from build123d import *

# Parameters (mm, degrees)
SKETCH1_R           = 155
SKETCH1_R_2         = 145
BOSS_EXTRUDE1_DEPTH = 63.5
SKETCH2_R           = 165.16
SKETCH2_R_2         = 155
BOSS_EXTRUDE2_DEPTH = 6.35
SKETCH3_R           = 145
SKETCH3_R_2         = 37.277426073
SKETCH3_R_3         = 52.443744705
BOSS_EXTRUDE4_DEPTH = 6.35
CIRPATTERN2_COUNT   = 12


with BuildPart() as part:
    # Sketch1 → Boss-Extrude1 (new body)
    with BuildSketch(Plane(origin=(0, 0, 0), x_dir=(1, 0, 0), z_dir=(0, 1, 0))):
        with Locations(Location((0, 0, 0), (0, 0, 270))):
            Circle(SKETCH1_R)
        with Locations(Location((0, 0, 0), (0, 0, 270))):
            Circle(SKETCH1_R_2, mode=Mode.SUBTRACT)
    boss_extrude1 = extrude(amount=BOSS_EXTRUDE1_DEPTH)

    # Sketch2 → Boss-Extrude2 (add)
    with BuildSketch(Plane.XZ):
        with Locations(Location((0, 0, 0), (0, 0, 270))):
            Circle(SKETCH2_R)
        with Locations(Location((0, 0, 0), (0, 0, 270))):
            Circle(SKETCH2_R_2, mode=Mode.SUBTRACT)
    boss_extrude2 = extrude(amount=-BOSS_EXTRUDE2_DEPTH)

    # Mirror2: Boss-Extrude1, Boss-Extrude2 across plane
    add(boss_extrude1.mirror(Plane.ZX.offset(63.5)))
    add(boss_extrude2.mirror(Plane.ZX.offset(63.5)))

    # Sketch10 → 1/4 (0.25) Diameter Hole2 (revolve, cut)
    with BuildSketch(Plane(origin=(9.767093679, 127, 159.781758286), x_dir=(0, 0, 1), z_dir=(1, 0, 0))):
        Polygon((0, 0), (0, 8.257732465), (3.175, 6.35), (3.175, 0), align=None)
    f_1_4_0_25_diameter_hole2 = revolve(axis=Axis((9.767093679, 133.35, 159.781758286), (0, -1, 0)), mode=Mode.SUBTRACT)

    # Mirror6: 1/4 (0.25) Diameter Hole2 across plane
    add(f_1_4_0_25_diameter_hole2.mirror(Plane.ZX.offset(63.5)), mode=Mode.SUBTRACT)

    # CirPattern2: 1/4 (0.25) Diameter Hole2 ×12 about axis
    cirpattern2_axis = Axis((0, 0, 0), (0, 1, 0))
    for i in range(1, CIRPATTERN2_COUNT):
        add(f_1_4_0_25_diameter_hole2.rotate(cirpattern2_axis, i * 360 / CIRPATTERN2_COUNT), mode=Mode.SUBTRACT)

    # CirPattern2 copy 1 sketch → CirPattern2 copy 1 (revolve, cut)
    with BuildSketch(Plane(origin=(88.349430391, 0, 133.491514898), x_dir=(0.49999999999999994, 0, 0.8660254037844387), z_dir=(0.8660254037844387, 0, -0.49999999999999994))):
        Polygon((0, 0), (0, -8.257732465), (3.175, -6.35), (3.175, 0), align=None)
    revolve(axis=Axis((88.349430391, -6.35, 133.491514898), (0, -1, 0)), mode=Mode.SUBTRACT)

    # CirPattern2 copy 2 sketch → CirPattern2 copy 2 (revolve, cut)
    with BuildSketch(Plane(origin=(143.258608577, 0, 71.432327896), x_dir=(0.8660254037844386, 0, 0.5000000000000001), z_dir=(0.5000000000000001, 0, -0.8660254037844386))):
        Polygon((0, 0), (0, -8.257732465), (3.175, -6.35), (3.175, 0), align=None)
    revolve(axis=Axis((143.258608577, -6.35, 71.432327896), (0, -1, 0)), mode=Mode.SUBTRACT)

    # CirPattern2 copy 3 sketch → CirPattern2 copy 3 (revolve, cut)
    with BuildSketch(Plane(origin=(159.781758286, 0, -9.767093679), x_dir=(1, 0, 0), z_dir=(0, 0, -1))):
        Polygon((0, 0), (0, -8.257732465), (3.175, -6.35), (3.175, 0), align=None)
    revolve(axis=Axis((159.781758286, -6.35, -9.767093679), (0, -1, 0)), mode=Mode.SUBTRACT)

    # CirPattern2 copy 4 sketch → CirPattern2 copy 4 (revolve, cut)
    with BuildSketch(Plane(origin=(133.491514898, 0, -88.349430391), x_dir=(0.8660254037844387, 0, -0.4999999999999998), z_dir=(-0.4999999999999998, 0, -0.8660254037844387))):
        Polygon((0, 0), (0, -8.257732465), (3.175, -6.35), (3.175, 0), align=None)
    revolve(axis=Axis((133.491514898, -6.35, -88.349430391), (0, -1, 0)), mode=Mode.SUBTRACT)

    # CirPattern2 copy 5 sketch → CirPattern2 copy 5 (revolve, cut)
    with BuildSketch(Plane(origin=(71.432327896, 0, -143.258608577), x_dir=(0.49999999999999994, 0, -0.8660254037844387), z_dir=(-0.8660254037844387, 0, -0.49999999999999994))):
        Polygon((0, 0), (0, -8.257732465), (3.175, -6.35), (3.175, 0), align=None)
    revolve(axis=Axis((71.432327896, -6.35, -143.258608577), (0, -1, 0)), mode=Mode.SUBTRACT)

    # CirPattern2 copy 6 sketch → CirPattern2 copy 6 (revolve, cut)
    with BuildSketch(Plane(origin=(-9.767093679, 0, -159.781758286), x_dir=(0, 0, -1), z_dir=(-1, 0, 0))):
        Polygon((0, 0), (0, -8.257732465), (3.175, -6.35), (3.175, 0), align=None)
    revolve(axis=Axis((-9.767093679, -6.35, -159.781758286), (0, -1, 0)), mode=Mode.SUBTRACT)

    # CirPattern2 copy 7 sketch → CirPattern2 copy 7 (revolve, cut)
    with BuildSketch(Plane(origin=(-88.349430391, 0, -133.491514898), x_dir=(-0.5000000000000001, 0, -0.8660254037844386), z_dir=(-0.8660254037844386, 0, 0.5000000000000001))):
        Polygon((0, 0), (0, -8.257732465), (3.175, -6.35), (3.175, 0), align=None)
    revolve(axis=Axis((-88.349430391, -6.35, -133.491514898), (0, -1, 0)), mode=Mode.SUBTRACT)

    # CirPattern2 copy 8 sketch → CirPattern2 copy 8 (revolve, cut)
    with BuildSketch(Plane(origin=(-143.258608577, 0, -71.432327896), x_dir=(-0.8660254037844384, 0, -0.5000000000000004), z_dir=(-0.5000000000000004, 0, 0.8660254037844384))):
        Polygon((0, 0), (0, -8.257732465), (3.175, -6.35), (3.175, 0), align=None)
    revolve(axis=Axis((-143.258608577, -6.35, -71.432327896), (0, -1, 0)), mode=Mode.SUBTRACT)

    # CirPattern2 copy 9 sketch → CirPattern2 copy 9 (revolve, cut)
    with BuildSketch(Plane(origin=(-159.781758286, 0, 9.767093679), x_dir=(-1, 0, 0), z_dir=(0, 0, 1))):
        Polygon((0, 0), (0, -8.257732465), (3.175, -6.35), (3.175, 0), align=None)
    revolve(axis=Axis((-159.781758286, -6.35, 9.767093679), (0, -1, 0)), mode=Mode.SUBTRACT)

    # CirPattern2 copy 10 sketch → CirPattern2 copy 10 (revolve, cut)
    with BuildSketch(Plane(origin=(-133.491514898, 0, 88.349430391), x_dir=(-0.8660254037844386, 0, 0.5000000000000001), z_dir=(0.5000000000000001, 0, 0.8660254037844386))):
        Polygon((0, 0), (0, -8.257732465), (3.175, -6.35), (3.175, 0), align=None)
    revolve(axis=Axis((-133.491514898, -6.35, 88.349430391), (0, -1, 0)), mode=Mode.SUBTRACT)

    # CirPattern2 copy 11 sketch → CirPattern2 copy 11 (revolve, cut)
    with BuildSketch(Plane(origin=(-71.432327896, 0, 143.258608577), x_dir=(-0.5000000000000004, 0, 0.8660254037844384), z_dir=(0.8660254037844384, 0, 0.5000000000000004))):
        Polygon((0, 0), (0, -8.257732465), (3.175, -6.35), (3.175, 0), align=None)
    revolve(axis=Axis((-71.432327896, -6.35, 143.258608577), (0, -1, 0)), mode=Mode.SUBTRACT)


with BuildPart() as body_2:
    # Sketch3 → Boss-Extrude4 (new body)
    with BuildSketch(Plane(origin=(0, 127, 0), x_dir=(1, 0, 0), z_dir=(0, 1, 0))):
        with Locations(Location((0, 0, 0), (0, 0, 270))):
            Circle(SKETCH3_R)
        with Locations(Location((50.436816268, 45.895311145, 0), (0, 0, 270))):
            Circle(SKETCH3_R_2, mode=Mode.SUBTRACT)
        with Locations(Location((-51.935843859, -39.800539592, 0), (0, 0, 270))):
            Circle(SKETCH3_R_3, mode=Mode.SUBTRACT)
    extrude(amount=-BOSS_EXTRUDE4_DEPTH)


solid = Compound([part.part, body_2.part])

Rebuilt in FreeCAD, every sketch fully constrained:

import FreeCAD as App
import Part
import Sketcher
from FreeCAD import Vector
Q = App.Units.Quantity


def add_polygon(sketch, points):
    """Adds a closed chain of lines whose ends are joined by coincident constraints."""
    first, n = sketch.GeometryCount, len(points)
    for a, b in zip(points, points[1:] + points[:1]):
        sketch.addGeometry(Part.LineSegment(App.Vector(*a, 0), App.Vector(*b, 0)), False)
    for i in range(n):
        sketch.addConstraint(Sketcher.Constraint("Coincident", first + i, 2, first + (i + 1) % n, 1))

doc = App.newDocument("Part")
body = doc.addObject("PartDesign::Body", "Body")

sketch1 = body.newObject("Sketcher::SketchObject", "Sketch")
sketch1.AttachmentSupport = (doc.getObject("XZ_Plane"), [""])
sketch1.MapMode = "FlatFace"
sketch1.addGeometry(Part.Circle(Vector(0, 0, 0), Vector(0, 0, 1), 155), False)
sketch1.addGeometry(Part.Circle(Vector(0, 0, 0), Vector(0, 0, 1), 145), False)
sketch1.addConstraint(Sketcher.Constraint("Coincident", 0, 3, -1, 1))
sketch1.addConstraint(Sketcher.Constraint("Coincident", 1, 3, -1, 1))
sketch1.addConstraint(Sketcher.Constraint("Diameter", 0, Q("310 mm")))
sketch1.addConstraint(Sketcher.Constraint("Diameter", 1, Q("290 mm")))
pad1 = body.newObject("PartDesign::Pad", "Pad")
pad1.Profile = sketch1
pad1.Length = Q("2.5 in")
pad1.Reversed = True

sketch2 = body.newObject("Sketcher::SketchObject", "Sketch001")
sketch2.AttachmentSupport = (doc.getObject("XZ_Plane"), [""])
sketch2.MapMode = "FlatFace"
sketch2.addGeometry(Part.Circle(Vector(0, 0, 0), Vector(0, 0, 1), 165.16), False)
sketch2.addGeometry(Part.Circle(Vector(0, 0, 0), Vector(0, 0, 1), 155), False)
sketch2.addConstraint(Sketcher.Constraint("Coincident", 0, 3, -1, 1))
sketch2.addConstraint(Sketcher.Constraint("Coincident", 1, 3, -1, 1))
sketch2.addConstraint(Sketcher.Constraint("Diameter", 0, Q("330.32 mm")))
sketch2.addConstraint(Sketcher.Constraint("Diameter", 1, Q("310 mm")))
pad2 = body.newObject("PartDesign::Pad", "Pad001")
pad2.Profile = sketch2
pad2.Length = Q("0.25 in")
pad2.Reversed = True
doc.recompute()

datumplane = body.newObject("PartDesign::Plane", "DatumPlane")
datumplane.AttachmentSupport = (doc.getObject("XZ_Plane"), [""])
datumplane.MapMode = "FlatFace"
datumplane.AttachmentOffset = App.Placement(Vector(0, 0, -2.5 * 25.4), App.Rotation())
mirrored = body.newObject("PartDesign::Mirrored", "Mirrored")
mirrored.Originals = [pad1, pad2]
mirrored.MirrorPlane = (datumplane, [""])
body.Tip = mirrored

sketch3 = body.newObject("Sketcher::SketchObject", "Sketch002")
sketch3.AttachmentSupport = (doc.getObject("YZ_Plane"), [""])
sketch3.MapMode = "FlatFace"
sketch3.AttachmentOffset = App.Placement(Vector(0, 0, 9.767094), App.Rotation())
add_polygon(sketch3, [(118.742268, 159.781758), (127, 159.781758), (127, 162.956758), (120.65, 162.956758)])
sketch3.addGeometry(Part.LineSegment(Vector(127, 159.781758, 0), Vector(118.742268, 159.781758, 0)), True)
sketch3.addConstraint(Sketcher.Constraint("Horizontal", 0))
sketch3.addConstraint(Sketcher.Constraint("Vertical", 1))
sketch3.addConstraint(Sketcher.Constraint("Horizontal", 2))
sketch3.addConstraint(Sketcher.Constraint("Horizontal", 4))
sketch3.addConstraint(Sketcher.Constraint("Coincident", 4, 1, 0, 2))
sketch3.addConstraint(Sketcher.Constraint("Equal", 0, 4))
sketch3.addConstraint(Sketcher.Constraint("DistanceX", -1, 1, 0, 2, Q("5 in")))
sketch3.addConstraint(Sketcher.Constraint("Angle", 3, Q("-121 deg")))
sketch3.addConstraint(Sketcher.Constraint("DistanceX", 2, 2, 2, 1, Q("0.25 in")))
sketch3.addConstraint(Sketcher.Constraint("DistanceY", 1, 1, 1, 2, Q("0.125 in")))
sketch3.addConstraint(Sketcher.Constraint("DistanceY", -1, 1, 0, 2, Q("159.781758 mm")))
groove = body.newObject("PartDesign::Groove", "Groove")
groove.Profile = sketch3
groove.ReferenceAxis = (sketch3, ["Axis0"])
groove.Angle = 360
doc.recompute()

datumplane2 = body.newObject("PartDesign::Plane", "DatumPlane001")
datumplane2.AttachmentSupport = (doc.getObject("XZ_Plane"), [""])
datumplane2.MapMode = "FlatFace"
datumplane2.AttachmentOffset = App.Placement(Vector(0, 0, -2.5 * 25.4), App.Rotation())
mirrored2 = body.newObject("PartDesign::Mirrored", "Mirrored001")
mirrored2.Originals = [groove]
mirrored2.MirrorPlane = (datumplane2, [""])
body.Tip = mirrored2
doc.recompute()

polarpattern = body.newObject("PartDesign::PolarPattern", "PolarPattern")
polarpattern.Originals = [groove]
polarpattern.Axis = (doc.getObject("Y_Axis"), [""])
polarpattern.Angle = 360
polarpattern.Occurrences = 12
body.Tip = polarpattern

sketch4 = body.newObject("Sketcher::SketchObject", "Sketch003")
sketch4.Placement = App.Placement(Vector(88.34943, 0, 133.491515), App.Rotation(Vector(0.5, 0, 0.866025404), Vector(0, -1, 0), Vector(0.866025404, 0, -0.5), "ZXY"))
add_polygon(sketch4, [(0, 0), (0, -8.257732), (3.175, -6.35), (3.175, 0)])
sketch4.addConstraint(Sketcher.Constraint("Vertical", 0))
sketch4.addConstraint(Sketcher.Constraint("Vertical", 2))
sketch4.addConstraint(Sketcher.Constraint("Horizontal", 3))
sketch4.addConstraint(Sketcher.Constraint("Coincident", 3, 2, -1, 1))
sketch4.addConstraint(Sketcher.Constraint("Angle", 1, Q("31 deg")))
sketch4.addConstraint(Sketcher.Constraint("DistanceY", 2, 1, 2, 2, Q("0.25 in")))
sketch4.addConstraint(Sketcher.Constraint("DistanceX", 3, 2, 3, 1, Q("0.125 in")))
groove2 = body.newObject("PartDesign::Groove", "Groove001")
groove2.Profile = sketch4
groove2.ReferenceAxis = (sketch4, ["V_Axis"])
groove2.Angle = 360

sketch5 = body.newObject("Sketcher::SketchObject", "Sketch004")
sketch5.Placement = App.Placement(Vector(143.258609, 0, 71.432328), App.Rotation(Vector(0.866025404, 0, 0.5), Vector(0, -1, 0), Vector(0.5, 0, -0.866025404), "ZXY"))
add_polygon(sketch5, [(0, 0), (0, -8.257732), (3.175, -6.35), (3.175, 0)])
sketch5.addConstraint(Sketcher.Constraint("Vertical", 0))
sketch5.addConstraint(Sketcher.Constraint("Vertical", 2))
sketch5.addConstraint(Sketcher.Constraint("Horizontal", 3))
sketch5.addConstraint(Sketcher.Constraint("Coincident", 3, 2, -1, 1))
sketch5.addConstraint(Sketcher.Constraint("Angle", 1, Q("31 deg")))
sketch5.addConstraint(Sketcher.Constraint("DistanceY", 2, 1, 2, 2, Q("0.25 in")))
sketch5.addConstraint(Sketcher.Constraint("DistanceX", 3, 2, 3, 1, Q("0.125 in")))
groove3 = body.newObject("PartDesign::Groove", "Groove002")
groove3.Profile = sketch5
groove3.ReferenceAxis = (sketch5, ["V_Axis"])
groove3.Angle = 360

sketch6 = body.newObject("Sketcher::SketchObject", "Sketch005")
sketch6.AttachmentSupport = (doc.getObject("XY_Plane"), [""])
sketch6.MapMode = "FlatFace"
sketch6.AttachmentOffset = App.Placement(Vector(0, 0, -9.767094), App.Rotation())
add_polygon(sketch6, [(159.781758, 0), (159.781758, 8.257732), (162.956758, 6.35), (162.956758, 0)])
sketch6.addGeometry(Part.LineSegment(Vector(159.781758, 8.257732, 0), Vector(159.781758, 0, 0)), True)
sketch6.addConstraint(Sketcher.Constraint("Vertical", 0))
sketch6.addConstraint(Sketcher.Constraint("Vertical", 2))
sketch6.addConstraint(Sketcher.Constraint("Horizontal", 3))
sketch6.addConstraint(Sketcher.Constraint("Vertical", 4))
sketch6.addConstraint(Sketcher.Constraint("Coincident", 4, 1, 0, 2))
sketch6.addConstraint(Sketcher.Constraint("PointOnObject", 2, 2, -1))
sketch6.addConstraint(Sketcher.Constraint("PointOnObject", 4, 2, -1))
sketch6.addConstraint(Sketcher.Constraint("Angle", 1, Q("-31 deg")))
sketch6.addConstraint(Sketcher.Constraint("DistanceY", 2, 2, 2, 1, Q("0.25 in")))
sketch6.addConstraint(Sketcher.Constraint("DistanceX", 3, 2, 3, 1, Q("0.125 in")))
sketch6.addConstraint(Sketcher.Constraint("DistanceX", -1, 1, 0, 2, Q("159.781758 mm")))
groove4 = body.newObject("PartDesign::Groove", "Groove003")
groove4.Profile = sketch6
groove4.ReferenceAxis = (sketch6, ["Axis0"])
groove4.Angle = 360

sketch7 = body.newObject("Sketcher::SketchObject", "Sketch006")
sketch7.Placement = App.Placement(Vector(133.491515, 0, -88.34943), App.Rotation(Vector(0.866025404, 0, -0.5), Vector(0, -1, 0), Vector(-0.5, 0, -0.866025404), "ZXY"))
add_polygon(sketch7, [(0, 0), (0, -8.257732), (3.175, -6.35), (3.175, 0)])
sketch7.addConstraint(Sketcher.Constraint("Vertical", 0))
sketch7.addConstraint(Sketcher.Constraint("Vertical", 2))
sketch7.addConstraint(Sketcher.Constraint("Horizontal", 3))
sketch7.addConstraint(Sketcher.Constraint("Coincident", 3, 2, -1, 1))
sketch7.addConstraint(Sketcher.Constraint("Angle", 1, Q("31 deg")))
sketch7.addConstraint(Sketcher.Constraint("DistanceY", 2, 1, 2, 2, Q("0.25 in")))
sketch7.addConstraint(Sketcher.Constraint("DistanceX", 3, 2, 3, 1, Q("0.125 in")))
groove5 = body.newObject("PartDesign::Groove", "Groove004")
groove5.Profile = sketch7
groove5.ReferenceAxis = (sketch7, ["V_Axis"])
groove5.Angle = 360

sketch8 = body.newObject("Sketcher::SketchObject", "Sketch007")
sketch8.Placement = App.Placement(Vector(71.432328, 0, -143.258609), App.Rotation(Vector(0.5, 0, -0.866025404), Vector(0, -1, 0), Vector(-0.866025404, 0, -0.5), "ZXY"))
add_polygon(sketch8, [(0, 0), (0, -8.257732), (3.175, -6.35), (3.175, 0)])
sketch8.addConstraint(Sketcher.Constraint("Vertical", 0))
sketch8.addConstraint(Sketcher.Constraint("Vertical", 2))
sketch8.addConstraint(Sketcher.Constraint("Horizontal", 3))
sketch8.addConstraint(Sketcher.Constraint("Coincident", 3, 2, -1, 1))
sketch8.addConstraint(Sketcher.Constraint("Angle", 1, Q("31 deg")))
sketch8.addConstraint(Sketcher.Constraint("DistanceY", 2, 1, 2, 2, Q("0.25 in")))
sketch8.addConstraint(Sketcher.Constraint("DistanceX", 3, 2, 3, 1, Q("0.125 in")))
groove6 = body.newObject("PartDesign::Groove", "Groove005")
groove6.Profile = sketch8
groove6.ReferenceAxis = (sketch8, ["V_Axis"])
groove6.Angle = 360

sketch9 = body.newObject("Sketcher::SketchObject", "Sketch008")
sketch9.AttachmentSupport = (doc.getObject("YZ_Plane"), [""])
sketch9.MapMode = "FlatFace"
sketch9.AttachmentOffset = App.Placement(Vector(0, 0, -9.767094), App.Rotation())
add_polygon(sketch9, [(0, -159.781758), (8.257732, -159.781758), (6.35, -162.956758), (0, -162.956758)])
sketch9.addGeometry(Part.LineSegment(Vector(8.257732, -159.781758, 0), Vector(0, -159.781758, 0)), True)
sketch9.addConstraint(Sketcher.Constraint("Horizontal", 0))
sketch9.addConstraint(Sketcher.Constraint("Horizontal", 2))
sketch9.addConstraint(Sketcher.Constraint("Vertical", 3))
sketch9.addConstraint(Sketcher.Constraint("Horizontal", 4))
sketch9.addConstraint(Sketcher.Constraint("Coincident", 4, 1, 0, 2))
sketch9.addConstraint(Sketcher.Constraint("PointOnObject", 2, 2, -2))
sketch9.addConstraint(Sketcher.Constraint("PointOnObject", 4, 2, -2))
sketch9.addConstraint(Sketcher.Constraint("Angle", 1, Q("-121 deg")))
sketch9.addConstraint(Sketcher.Constraint("DistanceX", 2, 2, 2, 1, Q("0.25 in")))
sketch9.addConstraint(Sketcher.Constraint("DistanceY", 3, 1, 3, 2, Q("0.125 in")))
sketch9.addConstraint(Sketcher.Constraint("DistanceY", 0, 2, -1, 1, Q("159.781758 mm")))
groove7 = body.newObject("PartDesign::Groove", "Groove006")
groove7.Profile = sketch9
groove7.ReferenceAxis = (sketch9, ["Axis0"])
groove7.Angle = 360

sketch10 = body.newObject("Sketcher::SketchObject", "Sketch009")
sketch10.Placement = App.Placement(Vector(-88.34943, 0, -133.491515), App.Rotation(Vector(-0.5, 0, -0.866025404), Vector(0, -1, 0), Vector(-0.866025404, 0, 0.5), "ZXY"))
add_polygon(sketch10, [(0, 0), (0, -8.257732), (3.175, -6.35), (3.175, 0)])
sketch10.addConstraint(Sketcher.Constraint("Vertical", 0))
sketch10.addConstraint(Sketcher.Constraint("Vertical", 2))
sketch10.addConstraint(Sketcher.Constraint("Horizontal", 3))
sketch10.addConstraint(Sketcher.Constraint("Coincident", 3, 2, -1, 1))
sketch10.addConstraint(Sketcher.Constraint("Angle", 1, Q("31 deg")))
sketch10.addConstraint(Sketcher.Constraint("DistanceY", 2, 1, 2, 2, Q("0.25 in")))
sketch10.addConstraint(Sketcher.Constraint("DistanceX", 3, 2, 3, 1, Q("0.125 in")))
groove8 = body.newObject("PartDesign::Groove", "Groove007")
groove8.Profile = sketch10
groove8.ReferenceAxis = (sketch10, ["V_Axis"])
groove8.Angle = 360

sketch11 = body.newObject("Sketcher::SketchObject", "Sketch010")
sketch11.Placement = App.Placement(Vector(-143.258609, 0, -71.432328), App.Rotation(Vector(-0.866025404, 0, -0.5), Vector(0, -1, 0), Vector(-0.5, 0, 0.866025404), "ZXY"))
add_polygon(sketch11, [(0, 0), (0, -8.257732), (3.175, -6.35), (3.175, 0)])
sketch11.addConstraint(Sketcher.Constraint("Vertical", 0))
sketch11.addConstraint(Sketcher.Constraint("Vertical", 2))
sketch11.addConstraint(Sketcher.Constraint("Horizontal", 3))
sketch11.addConstraint(Sketcher.Constraint("Coincident", 3, 2, -1, 1))
sketch11.addConstraint(Sketcher.Constraint("Angle", 1, Q("31 deg")))
sketch11.addConstraint(Sketcher.Constraint("DistanceY", 2, 1, 2, 2, Q("0.25 in")))
sketch11.addConstraint(Sketcher.Constraint("DistanceX", 3, 2, 3, 1, Q("0.125 in")))
groove9 = body.newObject("PartDesign::Groove", "Groove008")
groove9.Profile = sketch11
groove9.ReferenceAxis = (sketch11, ["V_Axis"])
groove9.Angle = 360

sketch12 = body.newObject("Sketcher::SketchObject", "Sketch011")
sketch12.AttachmentSupport = (doc.getObject("XY_Plane"), [""])
sketch12.MapMode = "FlatFace"
sketch12.AttachmentOffset = App.Placement(Vector(0, 0, 9.767094), App.Rotation())
add_polygon(sketch12, [(-159.781758, 0), (-159.781758, 8.257732), (-162.956758, 6.35), (-162.956758, 0)])
sketch12.addGeometry(Part.LineSegment(Vector(-159.781758, 8.257732, 0), Vector(-159.781758, 0, 0)), True)
sketch12.addConstraint(Sketcher.Constraint("Vertical", 0))
sketch12.addConstraint(Sketcher.Constraint("Vertical", 2))
sketch12.addConstraint(Sketcher.Constraint("Horizontal", 3))
sketch12.addConstraint(Sketcher.Constraint("Vertical", 4))
sketch12.addConstraint(Sketcher.Constraint("Coincident", 4, 1, 0, 2))
sketch12.addConstraint(Sketcher.Constraint("PointOnObject", 2, 2, -1))
sketch12.addConstraint(Sketcher.Constraint("PointOnObject", 4, 2, -1))
sketch12.addConstraint(Sketcher.Constraint("Angle", 1, Q("-149 deg")))
sketch12.addConstraint(Sketcher.Constraint("DistanceY", 2, 2, 2, 1, Q("0.25 in")))
sketch12.addConstraint(Sketcher.Constraint("DistanceX", 3, 1, 3, 2, Q("0.125 in")))
sketch12.addConstraint(Sketcher.Constraint("DistanceX", 0, 2, -1, 1, Q("159.781758 mm")))
groove10 = body.newObject("PartDesign::Groove", "Groove009")
groove10.Profile = sketch12
groove10.ReferenceAxis = (sketch12, ["Axis0"])
groove10.Angle = 360

sketch13 = body.newObject("Sketcher::SketchObject", "Sketch012")
sketch13.Placement = App.Placement(Vector(-133.491515, 0, 88.34943), App.Rotation(Vector(-0.866025404, 0, 0.5), Vector(0, -1, 0), Vector(0.5, 0, 0.866025404), "ZXY"))
add_polygon(sketch13, [(0, 0), (0, -8.257732), (3.175, -6.35), (3.175, 0)])
sketch13.addConstraint(Sketcher.Constraint("Vertical", 0))
sketch13.addConstraint(Sketcher.Constraint("Vertical", 2))
sketch13.addConstraint(Sketcher.Constraint("Horizontal", 3))
sketch13.addConstraint(Sketcher.Constraint("Coincident", 3, 2, -1, 1))
sketch13.addConstraint(Sketcher.Constraint("Angle", 1, Q("31 deg")))
sketch13.addConstraint(Sketcher.Constraint("DistanceY", 2, 1, 2, 2, Q("0.25 in")))
sketch13.addConstraint(Sketcher.Constraint("DistanceX", 3, 2, 3, 1, Q("0.125 in")))
groove11 = body.newObject("PartDesign::Groove", "Groove010")
groove11.Profile = sketch13
groove11.ReferenceAxis = (sketch13, ["V_Axis"])
groove11.Angle = 360

sketch14 = body.newObject("Sketcher::SketchObject", "Sketch013")
sketch14.Placement = App.Placement(Vector(-71.432328, 0, 143.258609), App.Rotation(Vector(-0.5, 0, 0.866025404), Vector(0, -1, 0), Vector(0.866025404, 0, 0.5), "ZXY"))
add_polygon(sketch14, [(0, 0), (0, -8.257732), (3.175, -6.35), (3.175, 0)])
sketch14.addConstraint(Sketcher.Constraint("Vertical", 0))
sketch14.addConstraint(Sketcher.Constraint("Vertical", 2))
sketch14.addConstraint(Sketcher.Constraint("Horizontal", 3))
sketch14.addConstraint(Sketcher.Constraint("Coincident", 3, 2, -1, 1))
sketch14.addConstraint(Sketcher.Constraint("Angle", 1, Q("31 deg")))
sketch14.addConstraint(Sketcher.Constraint("DistanceY", 2, 1, 2, 2, Q("0.25 in")))
sketch14.addConstraint(Sketcher.Constraint("DistanceX", 3, 2, 3, 1, Q("0.125 in")))
groove12 = body.newObject("PartDesign::Groove", "Groove011")
groove12.Profile = sketch14
groove12.ReferenceAxis = (sketch14, ["V_Axis"])
groove12.Angle = 360
body2 = doc.addObject("PartDesign::Body", "Body001")

sketch15 = body2.newObject("Sketcher::SketchObject", "Sketch014")
sketch15.AttachmentSupport = (doc.getObject("XZ_Plane001"), [""])
sketch15.MapMode = "FlatFace"
sketch15.AttachmentOffset = App.Placement(Vector(0, 0, -5 * 25.4), App.Rotation())
sketch15.addGeometry(Part.Circle(Vector(0, 0, 0), Vector(0, 0, 1), 145), False)
sketch15.addGeometry(Part.Circle(Vector(-51.935844, 39.80054, 0), Vector(0, 0, 1), 52.443745), False)
sketch15.addGeometry(Part.Circle(Vector(50.436816, -45.895311, 0), Vector(0, 0, 1), 37.277426), False)
sketch15.addConstraint(Sketcher.Constraint("Coincident", 0, 3, -1, 1))
sketch15.addConstraint(Sketcher.Constraint("Diameter", 0, Q("290 mm")))
sketch15.addConstraint(Sketcher.Constraint("Diameter", 1, Q("104.887489 mm")))
sketch15.addConstraint(Sketcher.Constraint("Diameter", 2, Q("74.554852 mm")))
sketch15.addConstraint(Sketcher.Constraint("DistanceY", -1, 1, 1, 3, Q("39.80054 mm")))
sketch15.addConstraint(Sketcher.Constraint("DistanceY", 2, 3, -1, 1, Q("45.895311 mm")))
sketch15.addConstraint(Sketcher.Constraint("DistanceX", 1, 3, 2, 3, Q("102.37266 mm")))
sketch15.addConstraint(Sketcher.Constraint("DistanceX", 1, 3, -1, 1, Q("51.935844 mm")))
pad3 = body2.newObject("PartDesign::Pad", "Pad002")
pad3.Profile = sketch15
pad3.Length = Q("0.25 in")

doc.recompute()
